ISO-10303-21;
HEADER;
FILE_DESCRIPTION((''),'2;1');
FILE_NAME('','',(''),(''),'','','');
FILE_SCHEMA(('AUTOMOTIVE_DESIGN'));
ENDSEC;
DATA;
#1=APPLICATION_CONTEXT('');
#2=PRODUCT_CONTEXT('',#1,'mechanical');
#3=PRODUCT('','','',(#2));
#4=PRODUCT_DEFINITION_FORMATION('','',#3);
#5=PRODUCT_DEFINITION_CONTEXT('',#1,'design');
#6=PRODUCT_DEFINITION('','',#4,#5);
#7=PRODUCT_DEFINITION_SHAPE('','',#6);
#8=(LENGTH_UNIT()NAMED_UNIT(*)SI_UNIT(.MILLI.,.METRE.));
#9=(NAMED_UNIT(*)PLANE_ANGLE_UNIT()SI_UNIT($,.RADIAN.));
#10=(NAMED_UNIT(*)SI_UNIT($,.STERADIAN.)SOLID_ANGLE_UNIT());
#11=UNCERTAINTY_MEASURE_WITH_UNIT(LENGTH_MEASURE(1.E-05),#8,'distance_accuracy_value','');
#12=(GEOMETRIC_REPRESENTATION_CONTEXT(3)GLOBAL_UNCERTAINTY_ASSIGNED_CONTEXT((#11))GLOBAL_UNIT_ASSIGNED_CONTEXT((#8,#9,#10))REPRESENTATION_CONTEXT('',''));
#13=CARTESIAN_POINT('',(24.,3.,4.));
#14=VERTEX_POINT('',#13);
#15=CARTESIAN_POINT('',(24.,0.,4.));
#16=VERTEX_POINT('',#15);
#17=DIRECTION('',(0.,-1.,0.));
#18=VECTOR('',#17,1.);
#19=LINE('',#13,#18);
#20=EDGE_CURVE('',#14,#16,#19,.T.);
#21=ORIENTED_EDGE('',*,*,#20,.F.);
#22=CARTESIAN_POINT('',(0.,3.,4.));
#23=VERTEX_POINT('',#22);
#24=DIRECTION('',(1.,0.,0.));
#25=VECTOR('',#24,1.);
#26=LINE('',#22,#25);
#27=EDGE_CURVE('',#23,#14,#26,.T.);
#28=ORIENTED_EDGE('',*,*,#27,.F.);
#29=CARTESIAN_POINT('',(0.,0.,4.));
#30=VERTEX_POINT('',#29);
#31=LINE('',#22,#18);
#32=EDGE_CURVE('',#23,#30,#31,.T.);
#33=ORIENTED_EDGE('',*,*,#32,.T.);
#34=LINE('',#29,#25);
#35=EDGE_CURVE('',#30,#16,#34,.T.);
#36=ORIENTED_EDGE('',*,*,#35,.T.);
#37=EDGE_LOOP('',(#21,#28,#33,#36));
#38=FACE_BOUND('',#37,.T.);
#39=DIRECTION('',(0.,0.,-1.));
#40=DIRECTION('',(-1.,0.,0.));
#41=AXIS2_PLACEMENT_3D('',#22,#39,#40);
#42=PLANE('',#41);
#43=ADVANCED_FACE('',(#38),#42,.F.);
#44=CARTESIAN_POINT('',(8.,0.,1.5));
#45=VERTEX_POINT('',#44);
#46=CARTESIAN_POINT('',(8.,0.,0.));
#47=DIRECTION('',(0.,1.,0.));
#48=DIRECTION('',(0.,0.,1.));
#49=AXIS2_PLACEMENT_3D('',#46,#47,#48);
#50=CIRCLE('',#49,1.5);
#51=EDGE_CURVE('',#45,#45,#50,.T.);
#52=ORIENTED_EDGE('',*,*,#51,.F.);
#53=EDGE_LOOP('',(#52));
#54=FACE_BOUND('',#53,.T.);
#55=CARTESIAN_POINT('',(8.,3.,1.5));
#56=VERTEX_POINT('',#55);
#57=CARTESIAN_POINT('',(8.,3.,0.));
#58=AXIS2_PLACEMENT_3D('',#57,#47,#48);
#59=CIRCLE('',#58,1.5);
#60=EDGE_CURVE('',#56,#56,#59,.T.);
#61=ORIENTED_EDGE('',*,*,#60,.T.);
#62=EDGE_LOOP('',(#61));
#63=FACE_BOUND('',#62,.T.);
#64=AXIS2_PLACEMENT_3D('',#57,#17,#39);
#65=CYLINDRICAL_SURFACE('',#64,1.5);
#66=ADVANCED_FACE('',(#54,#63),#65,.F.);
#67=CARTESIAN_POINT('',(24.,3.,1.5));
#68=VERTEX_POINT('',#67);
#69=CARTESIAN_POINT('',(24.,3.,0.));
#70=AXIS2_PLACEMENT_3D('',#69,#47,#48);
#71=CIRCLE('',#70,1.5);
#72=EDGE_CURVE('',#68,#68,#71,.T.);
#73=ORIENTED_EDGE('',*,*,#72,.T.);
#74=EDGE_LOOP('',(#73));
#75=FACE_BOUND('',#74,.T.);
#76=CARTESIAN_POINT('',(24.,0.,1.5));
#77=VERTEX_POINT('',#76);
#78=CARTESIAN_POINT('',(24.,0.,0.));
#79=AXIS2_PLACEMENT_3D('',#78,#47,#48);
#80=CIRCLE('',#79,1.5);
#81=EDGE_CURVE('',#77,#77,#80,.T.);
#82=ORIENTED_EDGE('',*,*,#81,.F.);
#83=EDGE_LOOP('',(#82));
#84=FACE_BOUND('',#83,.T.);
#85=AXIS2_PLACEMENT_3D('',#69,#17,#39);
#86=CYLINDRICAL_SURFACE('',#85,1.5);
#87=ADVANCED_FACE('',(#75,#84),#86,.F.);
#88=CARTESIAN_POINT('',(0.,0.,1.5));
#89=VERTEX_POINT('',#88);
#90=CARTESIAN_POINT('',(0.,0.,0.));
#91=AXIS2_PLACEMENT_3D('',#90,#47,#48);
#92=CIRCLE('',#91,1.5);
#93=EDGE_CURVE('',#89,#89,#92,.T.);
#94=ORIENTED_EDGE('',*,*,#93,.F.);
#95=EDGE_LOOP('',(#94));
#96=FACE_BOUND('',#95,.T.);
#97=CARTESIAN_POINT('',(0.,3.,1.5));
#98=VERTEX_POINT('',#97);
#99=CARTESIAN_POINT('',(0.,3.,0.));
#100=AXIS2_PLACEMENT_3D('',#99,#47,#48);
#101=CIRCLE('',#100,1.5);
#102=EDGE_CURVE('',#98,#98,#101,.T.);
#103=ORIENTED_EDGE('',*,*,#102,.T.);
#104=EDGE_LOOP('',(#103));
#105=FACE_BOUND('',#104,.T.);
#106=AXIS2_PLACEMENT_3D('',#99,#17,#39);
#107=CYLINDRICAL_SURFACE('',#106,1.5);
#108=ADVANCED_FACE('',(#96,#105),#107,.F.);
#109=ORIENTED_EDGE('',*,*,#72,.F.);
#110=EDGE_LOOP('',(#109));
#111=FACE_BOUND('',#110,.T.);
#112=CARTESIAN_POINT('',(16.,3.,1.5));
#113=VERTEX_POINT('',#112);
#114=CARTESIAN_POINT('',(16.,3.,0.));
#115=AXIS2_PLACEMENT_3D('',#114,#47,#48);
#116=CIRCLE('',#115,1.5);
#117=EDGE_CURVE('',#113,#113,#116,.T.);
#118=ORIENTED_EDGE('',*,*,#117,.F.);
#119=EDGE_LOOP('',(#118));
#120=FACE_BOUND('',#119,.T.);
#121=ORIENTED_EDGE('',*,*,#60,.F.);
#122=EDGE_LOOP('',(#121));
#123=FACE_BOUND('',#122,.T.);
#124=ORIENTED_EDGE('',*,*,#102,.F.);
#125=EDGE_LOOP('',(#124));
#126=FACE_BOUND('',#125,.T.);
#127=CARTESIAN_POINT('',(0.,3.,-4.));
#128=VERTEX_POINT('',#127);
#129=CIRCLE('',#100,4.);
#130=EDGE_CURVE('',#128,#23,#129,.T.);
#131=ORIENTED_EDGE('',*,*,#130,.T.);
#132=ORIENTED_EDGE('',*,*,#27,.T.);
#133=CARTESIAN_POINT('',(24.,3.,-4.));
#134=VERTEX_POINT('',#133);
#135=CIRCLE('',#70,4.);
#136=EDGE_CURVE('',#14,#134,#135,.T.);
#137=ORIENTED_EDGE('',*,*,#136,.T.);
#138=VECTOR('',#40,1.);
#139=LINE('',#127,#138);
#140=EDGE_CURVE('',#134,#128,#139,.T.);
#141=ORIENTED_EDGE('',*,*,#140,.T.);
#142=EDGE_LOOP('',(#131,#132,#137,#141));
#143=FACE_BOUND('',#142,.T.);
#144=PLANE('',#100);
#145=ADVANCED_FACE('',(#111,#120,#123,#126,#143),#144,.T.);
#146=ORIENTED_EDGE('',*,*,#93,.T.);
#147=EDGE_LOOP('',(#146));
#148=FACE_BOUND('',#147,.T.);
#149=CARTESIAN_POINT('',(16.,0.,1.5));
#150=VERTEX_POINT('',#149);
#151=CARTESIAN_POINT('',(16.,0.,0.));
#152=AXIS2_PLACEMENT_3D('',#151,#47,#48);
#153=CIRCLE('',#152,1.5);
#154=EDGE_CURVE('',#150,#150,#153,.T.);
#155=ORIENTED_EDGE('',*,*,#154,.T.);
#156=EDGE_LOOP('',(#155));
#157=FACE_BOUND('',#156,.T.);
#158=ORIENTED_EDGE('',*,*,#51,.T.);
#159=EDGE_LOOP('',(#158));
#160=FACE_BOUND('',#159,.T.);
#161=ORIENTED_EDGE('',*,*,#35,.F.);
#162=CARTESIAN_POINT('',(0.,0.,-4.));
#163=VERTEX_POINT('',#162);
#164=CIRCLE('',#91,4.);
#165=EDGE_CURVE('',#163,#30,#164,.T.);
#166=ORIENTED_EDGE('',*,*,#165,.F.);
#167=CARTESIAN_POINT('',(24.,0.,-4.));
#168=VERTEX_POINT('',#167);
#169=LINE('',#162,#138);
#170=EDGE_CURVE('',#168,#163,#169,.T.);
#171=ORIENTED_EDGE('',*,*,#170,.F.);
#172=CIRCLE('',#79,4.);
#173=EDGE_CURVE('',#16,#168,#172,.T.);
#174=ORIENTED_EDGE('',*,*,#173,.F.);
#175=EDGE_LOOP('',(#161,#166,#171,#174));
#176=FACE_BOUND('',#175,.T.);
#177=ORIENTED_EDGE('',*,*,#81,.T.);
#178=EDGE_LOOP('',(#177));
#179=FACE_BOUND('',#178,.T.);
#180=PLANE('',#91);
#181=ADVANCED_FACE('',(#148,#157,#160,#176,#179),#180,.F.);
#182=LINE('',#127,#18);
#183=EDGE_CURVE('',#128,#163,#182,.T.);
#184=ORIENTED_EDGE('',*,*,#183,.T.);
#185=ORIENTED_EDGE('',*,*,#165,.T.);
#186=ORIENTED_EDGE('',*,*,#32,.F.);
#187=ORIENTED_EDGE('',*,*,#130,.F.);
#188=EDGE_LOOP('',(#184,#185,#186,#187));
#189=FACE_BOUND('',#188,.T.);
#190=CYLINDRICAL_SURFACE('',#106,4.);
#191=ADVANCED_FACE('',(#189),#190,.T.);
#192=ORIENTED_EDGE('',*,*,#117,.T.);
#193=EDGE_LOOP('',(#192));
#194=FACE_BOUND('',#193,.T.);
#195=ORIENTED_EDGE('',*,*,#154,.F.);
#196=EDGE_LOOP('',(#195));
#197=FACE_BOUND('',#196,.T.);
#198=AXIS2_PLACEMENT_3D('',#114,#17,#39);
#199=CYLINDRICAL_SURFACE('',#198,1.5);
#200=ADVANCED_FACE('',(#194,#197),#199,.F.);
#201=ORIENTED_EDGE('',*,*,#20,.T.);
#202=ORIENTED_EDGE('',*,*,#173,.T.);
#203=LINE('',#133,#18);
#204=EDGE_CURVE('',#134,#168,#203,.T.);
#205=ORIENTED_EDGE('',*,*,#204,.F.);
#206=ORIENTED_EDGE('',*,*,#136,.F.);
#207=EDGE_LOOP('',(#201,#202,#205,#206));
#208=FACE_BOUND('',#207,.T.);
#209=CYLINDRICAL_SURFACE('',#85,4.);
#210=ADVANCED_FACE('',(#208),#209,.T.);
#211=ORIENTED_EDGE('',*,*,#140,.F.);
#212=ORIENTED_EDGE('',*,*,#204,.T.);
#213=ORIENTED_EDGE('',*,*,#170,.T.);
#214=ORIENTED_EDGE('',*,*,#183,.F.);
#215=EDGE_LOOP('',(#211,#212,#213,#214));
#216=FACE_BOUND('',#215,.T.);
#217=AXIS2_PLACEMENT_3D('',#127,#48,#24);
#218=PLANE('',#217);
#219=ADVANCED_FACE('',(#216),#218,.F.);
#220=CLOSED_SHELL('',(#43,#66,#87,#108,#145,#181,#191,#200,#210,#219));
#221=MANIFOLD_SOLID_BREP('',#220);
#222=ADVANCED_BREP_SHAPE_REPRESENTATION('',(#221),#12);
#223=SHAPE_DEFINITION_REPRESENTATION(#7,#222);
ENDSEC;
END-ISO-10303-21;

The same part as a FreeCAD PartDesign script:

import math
import FreeCAD as App
import Part
import Sketcher
Q = App.Units.Quantity

doc = App.newDocument("Part")
params = doc.addObject("Spreadsheet::Sheet", "Params")
for row, (alias, value) in enumerate([
    ("sketch1_diameter", "3 mm"),
    ("sketch1_radius", "4 mm"),
    ("sketch1_width", "24 mm"),
    ("pad1_length", "3 mm"),
], start=1):
    params.set(f"A{row}", alias)
    params.set(f"B{row}", "=" + value)
    params.setAlias(f"B{row}", alias)

body = doc.addObject("PartDesign::Body", "Body")

# Sketch on XZ plane
sketch1 = body.newObject("Sketcher::SketchObject", "Sketch")
sketch1.AttachmentSupport = (doc.getObject("XZ_Plane"), [""])
sketch1.MapMode = "FlatFace"
sketch1.addGeometry(Part.LineSegment(App.Vector(24, -4, 0), App.Vector(0, -4, 0)), False)
sketch1.addGeometry(Part.ArcOfCircle(Part.Circle(App.Vector(0, 0, 0), App.Vector(0, 0, 1), 4), math.radians(90), math.radians(270)), False)
sketch1.addGeometry(Part.LineSegment(App.Vector(0, 4, 0), App.Vector(24, 4, 0)), False)
sketch1.addGeometry(Part.ArcOfCircle(Part.Circle(App.Vector(24, 0, 0), App.Vector(0, 0, 1), 4), math.radians(-90), math.radians(90)), False)
sketch1.addGeometry(Part.Circle(App.Vector(24, 0, 0), App.Vector(0, 0, 1), 1.5), False)
sketch1.addGeometry(Part.Circle(App.Vector(16, 0, 0), App.Vector(0, 0, 1), 1.5), False)
sketch1.addGeometry(Part.Circle(App.Vector(8, 0, 0), App.Vector(0, 0, 1), 1.5), False)
sketch1.addGeometry(Part.Circle(App.Vector(0, 0, 0), App.Vector(0, 0, 1), 1.5), False)
sketch1.addConstraint(Sketcher.Constraint("Tangent", 0, 2, 1, 2))
sketch1.addConstraint(Sketcher.Constraint("Tangent", 1, 1, 2, 1))
sketch1.addConstraint(Sketcher.Constraint("Tangent", 2, 2, 3, 2))
sketch1.addConstraint(Sketcher.Constraint("Tangent", 3, 1, 0, 1))
sketch1.addConstraint(Sketcher.Constraint("Horizontal", 0))
sketch1.addConstraint(Sketcher.Constraint("Horizontal", 2))
sketch1.addConstraint(Sketcher.Constraint("Coincident", 1, 3, -1, 1))
sketch1.addConstraint(Sketcher.Constraint("Coincident", 7, 3, -1, 1))
sketch1.addConstraint(Sketcher.Constraint("Coincident", 4, 3, 3, 3))
sketch1.addConstraint(Sketcher.Constraint("Equal", 4, 5))
sketch1.addConstraint(Sketcher.Constraint("Equal", 5, 6))
sketch1.addConstraint(Sketcher.Constraint("Equal", 6, 7))
sketch1.addConstraint(Sketcher.Constraint("PointOnObject", 5, 3, -1))
sketch1.addConstraint(Sketcher.Constraint("PointOnObject", 6, 3, -1))
sketch1.addConstraint(Sketcher.Constraint("Diameter", 4, Q("3 mm")))
sketch1.addConstraint(Sketcher.Constraint("Radius", 1, Q("4 mm")))
sketch1.addConstraint(Sketcher.Constraint("DistanceX", 0, 2, 0, 1, Q("24 mm")))
sketch1.addConstraint(Sketcher.Constraint("DistanceX", -1, 1, 5, 3, Q("16 mm")))
sketch1.addConstraint(Sketcher.Constraint("DistanceX", -1, 1, 6, 3, Q("8 mm")))
sketch1.setExpression("Constraints[14]", "Params.sketch1_diameter")
sketch1.setExpression("Constraints[15]", "Params.sketch1_radius")
sketch1.setExpression("Constraints[16]", "Params.sketch1_width")
pad1 = body.newObject("PartDesign::Pad", "Pad")
pad1.Profile = sketch1
pad1.setExpression("Length", "Params.pad1_length")
pad1.Reversed = True

doc.recompute()
